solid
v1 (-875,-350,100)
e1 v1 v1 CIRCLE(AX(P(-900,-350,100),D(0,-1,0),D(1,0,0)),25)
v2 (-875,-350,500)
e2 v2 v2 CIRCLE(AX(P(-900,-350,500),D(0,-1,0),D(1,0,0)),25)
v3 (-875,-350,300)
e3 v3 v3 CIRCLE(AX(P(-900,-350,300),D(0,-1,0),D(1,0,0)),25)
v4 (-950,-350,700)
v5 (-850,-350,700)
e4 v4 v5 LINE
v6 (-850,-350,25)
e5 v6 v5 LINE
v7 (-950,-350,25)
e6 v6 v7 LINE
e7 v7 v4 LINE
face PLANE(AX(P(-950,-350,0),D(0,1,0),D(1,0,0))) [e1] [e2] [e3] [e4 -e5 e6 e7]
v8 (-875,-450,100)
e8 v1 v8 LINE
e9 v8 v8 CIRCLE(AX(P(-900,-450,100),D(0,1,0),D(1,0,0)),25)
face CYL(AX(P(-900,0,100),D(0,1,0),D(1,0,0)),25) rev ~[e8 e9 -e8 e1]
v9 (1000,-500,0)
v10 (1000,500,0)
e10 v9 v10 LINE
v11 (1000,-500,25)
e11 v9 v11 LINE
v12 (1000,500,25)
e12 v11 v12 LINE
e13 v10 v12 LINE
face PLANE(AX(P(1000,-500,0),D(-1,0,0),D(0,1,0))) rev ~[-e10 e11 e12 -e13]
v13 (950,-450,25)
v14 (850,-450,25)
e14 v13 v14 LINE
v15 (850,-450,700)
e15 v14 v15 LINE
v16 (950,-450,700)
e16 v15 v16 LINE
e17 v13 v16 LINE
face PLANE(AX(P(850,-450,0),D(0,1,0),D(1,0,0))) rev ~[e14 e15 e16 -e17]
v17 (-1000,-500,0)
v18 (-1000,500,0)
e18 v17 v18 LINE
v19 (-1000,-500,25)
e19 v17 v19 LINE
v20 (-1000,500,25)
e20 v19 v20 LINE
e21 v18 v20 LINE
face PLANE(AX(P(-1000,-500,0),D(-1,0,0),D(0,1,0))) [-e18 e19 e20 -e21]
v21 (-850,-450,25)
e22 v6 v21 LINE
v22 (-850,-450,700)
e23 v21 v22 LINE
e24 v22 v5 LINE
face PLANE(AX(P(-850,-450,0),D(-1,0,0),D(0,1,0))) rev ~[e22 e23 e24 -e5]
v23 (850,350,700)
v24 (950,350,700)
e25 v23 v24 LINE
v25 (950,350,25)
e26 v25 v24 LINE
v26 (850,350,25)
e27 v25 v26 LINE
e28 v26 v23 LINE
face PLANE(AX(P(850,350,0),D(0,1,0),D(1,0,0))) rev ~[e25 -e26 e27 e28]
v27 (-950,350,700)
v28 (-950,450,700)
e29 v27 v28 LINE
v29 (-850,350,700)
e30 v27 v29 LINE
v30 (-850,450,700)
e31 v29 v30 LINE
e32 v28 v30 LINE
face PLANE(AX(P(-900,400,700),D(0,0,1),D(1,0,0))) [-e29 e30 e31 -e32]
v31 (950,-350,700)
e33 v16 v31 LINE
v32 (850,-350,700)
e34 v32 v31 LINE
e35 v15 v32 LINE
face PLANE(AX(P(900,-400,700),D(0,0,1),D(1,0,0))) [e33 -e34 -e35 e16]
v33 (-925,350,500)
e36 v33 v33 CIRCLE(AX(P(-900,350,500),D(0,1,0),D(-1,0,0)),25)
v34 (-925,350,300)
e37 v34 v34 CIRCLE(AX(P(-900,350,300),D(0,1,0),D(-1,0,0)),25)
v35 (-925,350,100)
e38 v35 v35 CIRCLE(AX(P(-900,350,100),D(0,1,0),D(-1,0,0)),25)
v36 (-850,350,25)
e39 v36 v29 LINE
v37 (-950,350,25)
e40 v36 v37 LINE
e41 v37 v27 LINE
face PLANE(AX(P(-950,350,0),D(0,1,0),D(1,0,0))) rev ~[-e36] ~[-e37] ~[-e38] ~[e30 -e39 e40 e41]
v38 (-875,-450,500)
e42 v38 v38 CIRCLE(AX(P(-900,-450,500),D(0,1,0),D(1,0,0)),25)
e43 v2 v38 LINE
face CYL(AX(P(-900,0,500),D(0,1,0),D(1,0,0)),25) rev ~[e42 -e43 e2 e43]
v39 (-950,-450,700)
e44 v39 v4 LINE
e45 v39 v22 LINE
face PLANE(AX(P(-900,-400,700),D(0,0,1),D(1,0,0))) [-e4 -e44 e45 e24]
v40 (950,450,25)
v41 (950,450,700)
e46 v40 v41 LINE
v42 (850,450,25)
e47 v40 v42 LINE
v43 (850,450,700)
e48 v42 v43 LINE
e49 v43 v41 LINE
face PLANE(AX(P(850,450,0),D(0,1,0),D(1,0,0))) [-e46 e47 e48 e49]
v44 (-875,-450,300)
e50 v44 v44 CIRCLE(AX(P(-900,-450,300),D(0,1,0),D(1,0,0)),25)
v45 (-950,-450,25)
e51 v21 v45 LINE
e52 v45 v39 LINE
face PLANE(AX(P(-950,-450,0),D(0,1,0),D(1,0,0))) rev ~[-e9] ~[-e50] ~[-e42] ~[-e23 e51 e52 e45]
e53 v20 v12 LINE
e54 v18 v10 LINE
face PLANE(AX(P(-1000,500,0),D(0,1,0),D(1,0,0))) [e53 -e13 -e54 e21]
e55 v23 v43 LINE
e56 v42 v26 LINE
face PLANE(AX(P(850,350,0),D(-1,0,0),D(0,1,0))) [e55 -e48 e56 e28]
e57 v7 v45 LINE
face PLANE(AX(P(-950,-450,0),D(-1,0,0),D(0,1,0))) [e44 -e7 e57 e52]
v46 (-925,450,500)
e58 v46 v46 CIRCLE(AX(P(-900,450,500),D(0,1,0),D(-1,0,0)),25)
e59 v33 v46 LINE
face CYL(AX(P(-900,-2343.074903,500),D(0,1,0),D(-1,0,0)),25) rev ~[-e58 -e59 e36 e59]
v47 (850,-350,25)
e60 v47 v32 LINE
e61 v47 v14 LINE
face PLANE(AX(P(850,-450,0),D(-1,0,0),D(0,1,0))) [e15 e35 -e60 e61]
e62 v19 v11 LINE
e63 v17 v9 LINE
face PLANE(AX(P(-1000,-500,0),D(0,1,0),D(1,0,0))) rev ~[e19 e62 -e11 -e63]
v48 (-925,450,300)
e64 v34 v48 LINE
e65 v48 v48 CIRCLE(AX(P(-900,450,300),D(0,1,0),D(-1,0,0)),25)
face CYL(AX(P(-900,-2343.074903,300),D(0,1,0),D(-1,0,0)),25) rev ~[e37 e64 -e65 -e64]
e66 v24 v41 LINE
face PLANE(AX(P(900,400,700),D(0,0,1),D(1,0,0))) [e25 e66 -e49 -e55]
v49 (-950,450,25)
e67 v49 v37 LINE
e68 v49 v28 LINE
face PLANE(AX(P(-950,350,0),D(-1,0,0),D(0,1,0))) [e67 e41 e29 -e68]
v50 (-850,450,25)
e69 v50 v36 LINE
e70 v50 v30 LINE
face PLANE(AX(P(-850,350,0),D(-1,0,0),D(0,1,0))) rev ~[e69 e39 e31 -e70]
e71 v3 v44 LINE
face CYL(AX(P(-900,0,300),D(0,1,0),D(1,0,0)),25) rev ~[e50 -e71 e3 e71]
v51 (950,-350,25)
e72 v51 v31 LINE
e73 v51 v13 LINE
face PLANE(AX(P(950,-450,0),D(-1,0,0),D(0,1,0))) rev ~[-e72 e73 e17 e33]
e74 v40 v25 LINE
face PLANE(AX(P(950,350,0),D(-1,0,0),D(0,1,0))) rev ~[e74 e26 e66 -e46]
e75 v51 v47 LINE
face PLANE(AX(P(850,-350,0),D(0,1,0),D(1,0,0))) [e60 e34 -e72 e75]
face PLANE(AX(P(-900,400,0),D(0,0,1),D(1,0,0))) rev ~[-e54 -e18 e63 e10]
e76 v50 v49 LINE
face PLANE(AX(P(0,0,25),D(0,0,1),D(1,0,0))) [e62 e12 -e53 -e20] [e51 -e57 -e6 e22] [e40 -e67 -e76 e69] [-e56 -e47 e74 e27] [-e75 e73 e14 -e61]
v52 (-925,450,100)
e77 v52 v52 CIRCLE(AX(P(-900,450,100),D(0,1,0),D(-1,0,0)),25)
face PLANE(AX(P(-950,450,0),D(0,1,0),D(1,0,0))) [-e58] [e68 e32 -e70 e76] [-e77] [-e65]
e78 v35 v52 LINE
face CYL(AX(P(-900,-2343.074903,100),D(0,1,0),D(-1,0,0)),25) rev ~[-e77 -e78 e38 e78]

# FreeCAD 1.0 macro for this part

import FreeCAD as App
import Part
import Sketcher
from FreeCAD import Vector

doc = App.newDocument("Part")
body = doc.addObject("PartDesign::Body", "Body")

# Sketch on XY plane
sketch1 = body.newObject("Sketcher::SketchObject", "Sketch")
sketch1.AttachmentSupport = (doc.getObject("XY_Plane"), [""])
sketch1.MapMode = "FlatFace"
sketch1.addGeometry([
    Part.LineSegment(Vector(-1000, 500, 0), Vector(-1000, -500, 0)),
    Part.LineSegment(Vector(-1000, -500, 0), Vector(1000, -500, 0)),
    Part.LineSegment(Vector(1000, -500, 0), Vector(1000, 500, 0)),
    Part.LineSegment(Vector(1000, 500, 0), Vector(-1000, 500, 0)),
], False)
sketch1.addConstraint([
    Sketcher.Constraint("Coincident", 0, 2, 1, 1),
    Sketcher.Constraint("Coincident", 1, 2, 2, 1),
    Sketcher.Constraint("Coincident", 2, 2, 3, 1),
    Sketcher.Constraint("Coincident", 3, 2, 0, 1),
    Sketcher.Constraint("Vertical", 0),
    Sketcher.Constraint("Horizontal", 1),
    Sketcher.Constraint("Vertical", 2),
    Sketcher.Constraint("Horizontal", 3),
    Sketcher.Constraint("Symmetric", 0, 2, 2, 2, -1, 1),
    Sketcher.Constraint("DistanceX", 1, 1, 1, 2, 2000.0),
    Sketcher.Constraint("DistanceY", 0, 2, 0, 1, 1000.0),
])
pad1 = body.newObject("PartDesign::Pad", "Pad")
pad1.Profile = sketch1
pad1.Length = 25

# Sketch on XY plane
sketch2 = body.newObject("Sketcher::SketchObject", "Sketch001")
sketch2.AttachmentSupport = (doc.getObject("XY_Plane"), [""])
sketch2.MapMode = "FlatFace"
sketch2.addGeometry([
    Part.LineSegment(Vector(-950, 450, 0), Vector(-950, 350, 0)),  # 0
    Part.LineSegment(Vector(-950, 350, 0), Vector(-850, 350, 0)),  # 1
    Part.LineSegment(Vector(-850, 350, 0), Vector(-850, 450, 0)),  # 2
    Part.LineSegment(Vector(-850, 450, 0), Vector(-950, 450, 0)),  # 3
    Part.LineSegment(Vector(-950, -350, 0), Vector(-950, -450, 0)),  # 4
    Part.LineSegment(Vector(-950, -450, 0), Vector(-850, -450, 0)),  # 5
    Part.LineSegment(Vector(-850, -450, 0), Vector(-850, -350, 0)),  # 6
    Part.LineSegment(Vector(-850, -350, 0), Vector(-950, -350, 0)),  # 7
    Part.LineSegment(Vector(850, 450, 0), Vector(850, 350, 0)),  # 8
    Part.LineSegment(Vector(850, 350, 0), Vector(950, 350, 0)),  # 9
    Part.LineSegment(Vector(950, 350, 0), Vector(950, 450, 0)),  # 10
    Part.LineSegment(Vector(950, 450, 0), Vector(850, 450, 0)),  # 11
    Part.LineSegment(Vector(850, -350, 0), Vector(850, -450, 0)),  # 12
    Part.LineSegment(Vector(850, -450, 0), Vector(950, -450, 0)),  # 13
    Part.LineSegment(Vector(950, -450, 0), Vector(950, -350, 0)),  # 14
    Part.LineSegment(Vector(950, -350, 0), Vector(850, -350, 0)),  # 15
], False)
sketch2.addConstraint([
    Sketcher.Constraint("Coincident", 0, 2, 1, 1),
    Sketcher.Constraint("Coincident", 1, 2, 2, 1),
    Sketcher.Constraint("Coincident", 2, 2, 3, 1),
    Sketcher.Constraint("Coincident", 3, 2, 0, 1),
    Sketcher.Constraint("Coincident", 4, 2, 5, 1),
    Sketcher.Constraint("Coincident", 5, 2, 6, 1),
    Sketcher.Constraint("Coincident", 6, 2, 7, 1),
    Sketcher.Constraint("Coincident", 7, 2, 4, 1),
    Sketcher.Constraint("Coincident", 8, 2, 9, 1),
    Sketcher.Constraint("Coincident", 9, 2, 10, 1),
    Sketcher.Constraint("Coincident", 10, 2, 11, 1),
    Sketcher.Constraint("Coincident", 11, 2, 8, 1),
    Sketcher.Constraint("Coincident", 12, 2, 13, 1),
    Sketcher.Constraint("Coincident", 13, 2, 14, 1),
    Sketcher.Constraint("Coincident", 14, 2, 15, 1),
    Sketcher.Constraint("Coincident", 15, 2, 12, 1),
    Sketcher.Constraint("Vertical", 0),
    Sketcher.Constraint("Horizontal", 1),
    Sketcher.Constraint("Vertical", 2),
    Sketcher.Constraint("Horizontal", 3),
    Sketcher.Constraint("Vertical", 4),
    Sketcher.Constraint("Horizontal", 5),
    Sketcher.Constraint("Vertical", 6),
    Sketcher.Constraint("Horizontal", 7),
    Sketcher.Constraint("Vertical", 8),
    Sketcher.Constraint("Horizontal", 9),
    Sketcher.Constraint("Vertical", 10),
    Sketcher.Constraint("Horizontal", 11),
    Sketcher.Constraint("Vertical", 12),
    Sketcher.Constraint("Horizontal", 13),
    Sketcher.Constraint("Vertical", 14),
    Sketcher.Constraint("Horizontal", 15),
    Sketcher.Constraint("Symmetric", 6, 2, 8, 2, -1, 1),
    Sketcher.Constraint("Symmetric", 4, 2, 10, 2, -1, 1),
    Sketcher.Constraint("Symmetric", 2, 2, 12, 2, -1, 1),
    Sketcher.Constraint("Symmetric", 0, 2, 14, 2, -1, 1),
    Sketcher.Constraint("Symmetric", 1, 2, 8, 2, -2),
    Sketcher.Constraint("Symmetric", 3, 2, 10, 2, -2),
    Sketcher.Constraint("Equal", 15, 0),
    Sketcher.Constraint("DistanceX", 1, 1, 1, 2, 100.0),
    Sketcher.Constraint("DistanceX", 0, 2, -1, 1, 950.0),
    Sketcher.Constraint("DistanceY", -1, 1, 0, 2, 350.0),
])
pad2 = body.newObject("PartDesign::Pad", "Pad001")
pad2.Profile = sketch2
pad2.Length = 700

# Sketch on XZ plane
sketch3 = body.newObject("Sketcher::SketchObject", "Sketch002")
sketch3.AttachmentSupport = (doc.getObject("XZ_Plane"), [""])
sketch3.MapMode = "FlatFace"
sketch3.addGeometry([
    Part.Circle(Vector(-900, 100, 0), Vector(0, 0, 1), 25),
    Part.Circle(Vector(-900, 500, 0), Vector(0, 0, 1), 25),
    Part.Circle(Vector(-900, 300, 0), Vector(0, 0, 1), 25),
], False)
sketch3.addConstraint([
    Sketcher.Constraint("Equal", 0, 1),
    Sketcher.Constraint("Equal", 1, 2),
    Sketcher.Constraint("Vertical", 0, 3, 1, 3),
    Sketcher.Constraint("Vertical", 1, 3, 2, 3),
    Sketcher.Constraint("Diameter", 0, 50.0),
    Sketcher.Constraint("DistanceX", 0, 3, -1, 1, 900.0),
    Sketcher.Constraint("DistanceY", -1, 1, 0, 3, 100.0),
    Sketcher.Constraint("DistanceY", -1, 1, 1, 3, 500.0),
    Sketcher.Constraint("DistanceY", -1, 1, 2, 3, 300.0),
])
pocket1 = body.newObject("PartDesign::Pocket", "Pocket")
pocket1.Profile = sketch3
pocket1.Type = "ThroughAll"
pocket1.Reversed = True

# Sketch on XZ plane
sketch4 = body.newObject("Sketcher::SketchObject", "Sketch003")
sketch4.AttachmentSupport = (doc.getObject("XZ_Plane"), [""])
sketch4.MapMode = "FlatFace"
sketch4.addGeometry([
    Part.Circle(Vector(-900, 300, 0), Vector(0, 0, 1), 25),
    Part.Circle(Vector(-900, 500, 0), Vector(0, 0, 1), 25),
    Part.Circle(Vector(-900, 100, 0), Vector(0, 0, 1), 25),
], False)
sketch4.addConstraint([
    Sketcher.Constraint("Equal", 0, 1),
    Sketcher.Constraint("Equal", 1, 2),
    Sketcher.Constraint("Vertical", 0, 3, 1, 3),
    Sketcher.Constraint("Vertical", 1, 3, 2, 3),
    Sketcher.Constraint("Diameter", 0, 50.0),
    Sketcher.Constraint("DistanceX", 0, 3, -1, 1, 900.0),
    Sketcher.Constraint("DistanceY", -1, 1, 0, 3, 300.0),
    Sketcher.Constraint("DistanceY", -1, 1, 1, 3, 500.0),
    Sketcher.Constraint("DistanceY", -1, 1, 2, 3, 100.0),
])
doc.recompute()
hole = body.newObject("PartDesign::Hole", "Hole")
hole.Profile = sketch4
hole.ThreadType = "None"
hole.Diameter = 50
hole.DepthType = "ThroughAll"

doc.recompute()
